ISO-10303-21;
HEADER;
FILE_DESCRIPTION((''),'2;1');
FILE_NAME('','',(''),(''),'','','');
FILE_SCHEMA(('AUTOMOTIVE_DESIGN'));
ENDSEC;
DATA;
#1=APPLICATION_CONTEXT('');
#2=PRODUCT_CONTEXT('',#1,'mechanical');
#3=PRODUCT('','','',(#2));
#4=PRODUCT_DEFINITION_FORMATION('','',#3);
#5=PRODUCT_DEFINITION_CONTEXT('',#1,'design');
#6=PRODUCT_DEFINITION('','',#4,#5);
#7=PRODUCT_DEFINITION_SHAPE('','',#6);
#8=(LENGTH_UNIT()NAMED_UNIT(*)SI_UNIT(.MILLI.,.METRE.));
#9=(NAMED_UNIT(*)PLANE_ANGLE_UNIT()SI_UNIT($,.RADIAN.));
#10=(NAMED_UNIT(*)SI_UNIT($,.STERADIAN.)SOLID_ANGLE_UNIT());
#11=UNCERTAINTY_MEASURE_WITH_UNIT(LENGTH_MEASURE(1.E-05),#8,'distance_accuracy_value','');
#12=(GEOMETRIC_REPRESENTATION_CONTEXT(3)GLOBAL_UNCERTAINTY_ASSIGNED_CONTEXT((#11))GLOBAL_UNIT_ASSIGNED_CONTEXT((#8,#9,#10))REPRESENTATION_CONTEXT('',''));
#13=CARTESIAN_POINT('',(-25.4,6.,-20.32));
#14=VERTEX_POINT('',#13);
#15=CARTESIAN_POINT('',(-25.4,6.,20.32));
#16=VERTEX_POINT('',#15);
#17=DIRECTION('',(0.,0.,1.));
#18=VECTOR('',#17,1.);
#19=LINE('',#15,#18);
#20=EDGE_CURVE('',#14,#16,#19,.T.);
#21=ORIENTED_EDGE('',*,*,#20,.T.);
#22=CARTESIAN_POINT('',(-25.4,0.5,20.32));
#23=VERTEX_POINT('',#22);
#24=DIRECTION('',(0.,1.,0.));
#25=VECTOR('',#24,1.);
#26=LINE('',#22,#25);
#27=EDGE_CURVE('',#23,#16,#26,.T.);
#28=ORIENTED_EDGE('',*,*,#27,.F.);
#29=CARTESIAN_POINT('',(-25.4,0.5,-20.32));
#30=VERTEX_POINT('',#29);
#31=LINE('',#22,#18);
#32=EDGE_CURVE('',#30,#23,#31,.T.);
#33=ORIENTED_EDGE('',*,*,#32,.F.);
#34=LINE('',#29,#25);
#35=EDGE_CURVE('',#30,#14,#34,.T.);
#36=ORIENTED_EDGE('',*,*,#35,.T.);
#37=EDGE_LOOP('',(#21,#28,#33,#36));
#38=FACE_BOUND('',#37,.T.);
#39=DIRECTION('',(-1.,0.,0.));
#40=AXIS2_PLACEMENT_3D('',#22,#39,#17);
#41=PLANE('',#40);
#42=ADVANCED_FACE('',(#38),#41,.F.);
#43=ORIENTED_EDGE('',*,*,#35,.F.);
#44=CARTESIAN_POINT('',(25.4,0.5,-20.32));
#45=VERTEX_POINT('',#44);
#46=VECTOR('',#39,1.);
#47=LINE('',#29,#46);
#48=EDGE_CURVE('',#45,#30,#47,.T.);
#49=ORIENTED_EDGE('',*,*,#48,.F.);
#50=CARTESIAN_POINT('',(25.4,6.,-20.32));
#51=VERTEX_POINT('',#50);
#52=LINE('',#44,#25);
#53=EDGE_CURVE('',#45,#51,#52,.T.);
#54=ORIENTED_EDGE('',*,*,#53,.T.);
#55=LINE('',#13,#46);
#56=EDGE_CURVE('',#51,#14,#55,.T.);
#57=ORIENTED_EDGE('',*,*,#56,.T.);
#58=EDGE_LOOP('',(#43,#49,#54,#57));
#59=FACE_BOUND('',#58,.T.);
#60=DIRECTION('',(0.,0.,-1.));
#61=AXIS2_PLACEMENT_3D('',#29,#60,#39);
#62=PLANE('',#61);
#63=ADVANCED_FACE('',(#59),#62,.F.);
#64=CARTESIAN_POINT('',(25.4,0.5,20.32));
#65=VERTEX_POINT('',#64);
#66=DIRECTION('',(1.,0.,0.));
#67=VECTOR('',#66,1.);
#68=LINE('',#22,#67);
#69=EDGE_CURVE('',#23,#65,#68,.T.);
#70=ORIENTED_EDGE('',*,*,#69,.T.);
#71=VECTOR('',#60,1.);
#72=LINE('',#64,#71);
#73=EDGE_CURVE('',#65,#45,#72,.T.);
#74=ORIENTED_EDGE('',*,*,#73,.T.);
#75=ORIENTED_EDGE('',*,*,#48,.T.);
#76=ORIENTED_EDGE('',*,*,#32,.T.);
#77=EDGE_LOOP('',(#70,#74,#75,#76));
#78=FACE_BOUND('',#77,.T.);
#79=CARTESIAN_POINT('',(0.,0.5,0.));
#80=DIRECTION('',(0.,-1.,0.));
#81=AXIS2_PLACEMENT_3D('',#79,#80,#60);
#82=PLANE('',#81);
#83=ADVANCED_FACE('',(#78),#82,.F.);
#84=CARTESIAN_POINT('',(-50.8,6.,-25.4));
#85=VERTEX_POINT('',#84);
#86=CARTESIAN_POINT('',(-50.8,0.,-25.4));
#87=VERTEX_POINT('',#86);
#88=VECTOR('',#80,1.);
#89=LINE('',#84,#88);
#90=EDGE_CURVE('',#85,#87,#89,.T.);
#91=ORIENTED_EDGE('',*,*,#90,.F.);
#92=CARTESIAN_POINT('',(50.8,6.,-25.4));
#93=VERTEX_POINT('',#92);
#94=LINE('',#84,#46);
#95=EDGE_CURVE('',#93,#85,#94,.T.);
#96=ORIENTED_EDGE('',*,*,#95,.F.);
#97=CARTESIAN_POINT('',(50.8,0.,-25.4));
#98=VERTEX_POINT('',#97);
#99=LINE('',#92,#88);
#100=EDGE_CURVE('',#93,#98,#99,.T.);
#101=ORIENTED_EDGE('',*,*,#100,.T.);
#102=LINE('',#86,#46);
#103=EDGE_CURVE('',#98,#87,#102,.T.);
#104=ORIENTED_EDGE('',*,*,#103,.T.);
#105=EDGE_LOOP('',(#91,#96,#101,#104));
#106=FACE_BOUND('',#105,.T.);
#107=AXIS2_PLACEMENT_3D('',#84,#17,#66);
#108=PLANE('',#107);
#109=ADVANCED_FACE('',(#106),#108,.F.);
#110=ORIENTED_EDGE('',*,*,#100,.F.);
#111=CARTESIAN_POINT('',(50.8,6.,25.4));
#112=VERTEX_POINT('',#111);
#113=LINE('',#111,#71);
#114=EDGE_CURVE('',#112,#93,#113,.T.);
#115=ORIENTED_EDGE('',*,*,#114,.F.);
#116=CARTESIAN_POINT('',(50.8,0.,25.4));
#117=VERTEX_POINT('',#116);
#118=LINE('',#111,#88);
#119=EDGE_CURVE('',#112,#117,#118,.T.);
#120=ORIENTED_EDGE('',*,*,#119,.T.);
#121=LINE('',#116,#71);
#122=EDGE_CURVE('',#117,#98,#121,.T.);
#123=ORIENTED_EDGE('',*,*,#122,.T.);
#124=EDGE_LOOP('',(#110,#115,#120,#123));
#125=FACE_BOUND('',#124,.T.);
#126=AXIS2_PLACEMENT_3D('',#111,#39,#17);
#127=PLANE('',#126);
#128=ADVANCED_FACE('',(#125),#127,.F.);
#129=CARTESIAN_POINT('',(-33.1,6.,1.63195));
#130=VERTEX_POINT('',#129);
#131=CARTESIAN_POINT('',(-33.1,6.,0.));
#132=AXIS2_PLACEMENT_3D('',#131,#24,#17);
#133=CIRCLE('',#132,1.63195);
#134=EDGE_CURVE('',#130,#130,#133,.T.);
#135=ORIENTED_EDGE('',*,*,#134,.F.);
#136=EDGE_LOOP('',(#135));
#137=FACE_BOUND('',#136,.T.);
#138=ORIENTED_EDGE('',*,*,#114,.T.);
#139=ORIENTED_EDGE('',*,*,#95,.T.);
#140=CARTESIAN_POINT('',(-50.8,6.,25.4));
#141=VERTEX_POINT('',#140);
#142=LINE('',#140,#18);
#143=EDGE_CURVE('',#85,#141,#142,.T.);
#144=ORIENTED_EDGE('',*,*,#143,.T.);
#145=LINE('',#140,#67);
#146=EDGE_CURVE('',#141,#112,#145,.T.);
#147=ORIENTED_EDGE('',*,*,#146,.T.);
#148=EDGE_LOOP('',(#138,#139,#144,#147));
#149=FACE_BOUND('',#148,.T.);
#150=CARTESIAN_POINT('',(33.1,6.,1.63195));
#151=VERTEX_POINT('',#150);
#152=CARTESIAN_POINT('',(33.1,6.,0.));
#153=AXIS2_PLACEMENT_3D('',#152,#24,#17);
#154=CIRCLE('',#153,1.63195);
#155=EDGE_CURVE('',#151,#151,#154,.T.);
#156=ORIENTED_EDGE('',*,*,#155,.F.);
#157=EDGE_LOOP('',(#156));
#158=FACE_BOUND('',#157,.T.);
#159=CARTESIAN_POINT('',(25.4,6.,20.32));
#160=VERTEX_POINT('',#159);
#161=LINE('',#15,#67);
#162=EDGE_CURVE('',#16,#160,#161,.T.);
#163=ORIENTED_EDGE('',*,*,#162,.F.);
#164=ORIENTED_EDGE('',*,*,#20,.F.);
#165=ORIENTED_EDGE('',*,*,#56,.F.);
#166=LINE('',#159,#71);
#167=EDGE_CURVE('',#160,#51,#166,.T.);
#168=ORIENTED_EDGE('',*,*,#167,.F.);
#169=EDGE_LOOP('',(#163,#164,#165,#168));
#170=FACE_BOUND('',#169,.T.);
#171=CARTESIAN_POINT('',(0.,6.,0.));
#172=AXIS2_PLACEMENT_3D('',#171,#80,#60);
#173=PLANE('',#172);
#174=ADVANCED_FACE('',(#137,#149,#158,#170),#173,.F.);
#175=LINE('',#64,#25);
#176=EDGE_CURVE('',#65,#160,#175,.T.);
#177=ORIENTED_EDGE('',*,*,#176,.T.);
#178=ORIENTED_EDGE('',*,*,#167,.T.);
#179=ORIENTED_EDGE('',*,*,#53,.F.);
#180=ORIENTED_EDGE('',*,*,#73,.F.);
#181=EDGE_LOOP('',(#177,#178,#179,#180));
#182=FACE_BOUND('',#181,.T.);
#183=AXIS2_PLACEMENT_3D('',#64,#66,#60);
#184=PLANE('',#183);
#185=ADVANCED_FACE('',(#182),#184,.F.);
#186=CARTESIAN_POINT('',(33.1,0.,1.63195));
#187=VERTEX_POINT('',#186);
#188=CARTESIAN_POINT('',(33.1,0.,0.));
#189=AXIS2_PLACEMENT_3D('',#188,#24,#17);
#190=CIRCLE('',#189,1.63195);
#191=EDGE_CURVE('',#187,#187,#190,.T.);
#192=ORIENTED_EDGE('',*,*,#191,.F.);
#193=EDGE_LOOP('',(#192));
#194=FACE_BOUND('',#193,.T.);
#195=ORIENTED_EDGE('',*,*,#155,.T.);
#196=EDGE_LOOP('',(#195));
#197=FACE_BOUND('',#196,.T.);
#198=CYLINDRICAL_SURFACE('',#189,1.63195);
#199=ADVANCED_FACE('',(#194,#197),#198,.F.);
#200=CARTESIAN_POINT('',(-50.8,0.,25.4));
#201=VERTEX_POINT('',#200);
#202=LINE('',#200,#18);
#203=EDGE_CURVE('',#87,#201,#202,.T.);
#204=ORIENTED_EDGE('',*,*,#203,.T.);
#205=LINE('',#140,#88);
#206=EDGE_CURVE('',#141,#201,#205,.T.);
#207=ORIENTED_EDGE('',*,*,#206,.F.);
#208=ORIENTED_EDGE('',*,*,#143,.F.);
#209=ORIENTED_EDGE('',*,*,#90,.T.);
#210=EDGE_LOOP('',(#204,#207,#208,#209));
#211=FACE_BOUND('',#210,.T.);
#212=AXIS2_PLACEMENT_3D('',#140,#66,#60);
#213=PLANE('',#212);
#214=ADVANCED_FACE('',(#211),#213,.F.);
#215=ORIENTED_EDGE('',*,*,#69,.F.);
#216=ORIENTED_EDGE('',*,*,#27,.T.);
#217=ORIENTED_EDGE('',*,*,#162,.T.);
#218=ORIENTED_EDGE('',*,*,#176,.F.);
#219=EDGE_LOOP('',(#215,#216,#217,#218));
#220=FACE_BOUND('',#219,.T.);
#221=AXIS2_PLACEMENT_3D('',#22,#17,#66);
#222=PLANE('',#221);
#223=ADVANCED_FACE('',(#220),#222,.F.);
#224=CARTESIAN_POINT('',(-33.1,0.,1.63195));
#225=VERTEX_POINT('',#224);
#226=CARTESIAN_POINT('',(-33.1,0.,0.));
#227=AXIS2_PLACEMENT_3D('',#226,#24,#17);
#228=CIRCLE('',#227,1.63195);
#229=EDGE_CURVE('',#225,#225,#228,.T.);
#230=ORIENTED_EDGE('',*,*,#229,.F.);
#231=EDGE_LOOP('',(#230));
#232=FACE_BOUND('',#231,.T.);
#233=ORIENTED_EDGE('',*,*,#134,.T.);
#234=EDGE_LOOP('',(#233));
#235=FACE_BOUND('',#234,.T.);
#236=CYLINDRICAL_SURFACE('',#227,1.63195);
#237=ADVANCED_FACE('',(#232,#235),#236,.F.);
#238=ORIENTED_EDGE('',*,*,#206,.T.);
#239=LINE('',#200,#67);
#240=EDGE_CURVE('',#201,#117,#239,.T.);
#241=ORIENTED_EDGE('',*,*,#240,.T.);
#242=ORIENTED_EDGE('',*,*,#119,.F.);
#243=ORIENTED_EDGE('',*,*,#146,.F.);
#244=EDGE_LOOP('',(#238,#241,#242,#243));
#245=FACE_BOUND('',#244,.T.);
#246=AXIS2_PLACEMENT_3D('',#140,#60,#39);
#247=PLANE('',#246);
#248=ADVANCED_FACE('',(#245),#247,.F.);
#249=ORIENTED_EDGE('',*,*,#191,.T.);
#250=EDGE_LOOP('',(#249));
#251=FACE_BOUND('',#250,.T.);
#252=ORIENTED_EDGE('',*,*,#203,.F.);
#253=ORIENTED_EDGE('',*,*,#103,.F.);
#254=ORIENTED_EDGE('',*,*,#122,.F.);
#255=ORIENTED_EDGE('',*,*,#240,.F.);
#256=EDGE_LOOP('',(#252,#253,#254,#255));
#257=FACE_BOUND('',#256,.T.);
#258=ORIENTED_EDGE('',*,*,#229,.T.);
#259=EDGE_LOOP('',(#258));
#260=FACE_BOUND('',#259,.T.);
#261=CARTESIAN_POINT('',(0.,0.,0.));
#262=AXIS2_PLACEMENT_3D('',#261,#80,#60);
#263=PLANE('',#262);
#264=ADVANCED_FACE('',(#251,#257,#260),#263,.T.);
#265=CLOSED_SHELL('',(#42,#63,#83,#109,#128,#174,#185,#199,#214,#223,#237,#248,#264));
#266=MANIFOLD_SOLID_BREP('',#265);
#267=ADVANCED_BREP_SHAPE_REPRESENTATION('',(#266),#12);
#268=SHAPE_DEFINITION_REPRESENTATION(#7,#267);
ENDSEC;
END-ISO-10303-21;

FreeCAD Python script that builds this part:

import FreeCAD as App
import Part
import Sketcher
Q = App.Units.Quantity

doc = App.newDocument("Part")
body = doc.addObject("PartDesign::Body", "Body")

# Sketch on XZ plane
sketch1 = body.newObject("Sketcher::SketchObject", "Sketch")
sketch1.AttachmentSupport = (doc.getObject("XZ_Plane"), [""])
sketch1.MapMode = "FlatFace"
sketch1.addGeometry([
    Part.LineSegment(App.Vector(-50.8, -25.4, 0), App.Vector(-50.8, 25.4, 0)),
    Part.LineSegment(App.Vector(-50.8, 25.4, 0), App.Vector(50.8, 25.4, 0)),
    Part.LineSegment(App.Vector(50.8, 25.4, 0), App.Vector(50.8, -25.4, 0)),
    Part.LineSegment(App.Vector(50.8, -25.4, 0), App.Vector(-50.8, -25.4, 0)),
], False)
sketch1.addConstraint([
    Sketcher.Constraint("Coincident", 0, 2, 1, 1),
    Sketcher.Constraint("Coincident", 1, 2, 2, 1),
    Sketcher.Constraint("Coincident", 2, 2, 3, 1),
    Sketcher.Constraint("Coincident", 3, 2, 0, 1),
    Sketcher.Constraint("Vertical", 0),
    Sketcher.Constraint("Horizontal", 1),
    Sketcher.Constraint("Vertical", 2),
    Sketcher.Constraint("Horizontal", 3),
    Sketcher.Constraint("Symmetric", 0, 2, 2, 2, -1, 1),
    Sketcher.Constraint("DistanceX", 1, 1, 1, 2, Q("4 in")),
    Sketcher.Constraint("DistanceY", 0, 1, 0, 2, Q("2 in")),
])
pad1 = body.newObject("PartDesign::Pad", "Pad")
pad1.Profile = sketch1
pad1.Length = 6
pad1.Reversed = True

# Sketch on XZ plane
sketch2 = body.newObject("Sketcher::SketchObject", "Sketch001")
sketch2.AttachmentSupport = (doc.getObject("XZ_Plane"), [""])
sketch2.MapMode = "FlatFace"
sketch2.AttachmentOffset = App.Placement(App.Vector(0, 0, -6), App.Rotation())
sketch2.addGeometry([
    Part.LineSegment(App.Vector(-25.4, -20.32, 0), App.Vector(-25.4, 20.32, 0)),
    Part.LineSegment(App.Vector(-25.4, 20.32, 0), App.Vector(25.4, 20.32, 0)),
    Part.LineSegment(App.Vector(25.4, 20.32, 0), App.Vector(25.4, -20.32, 0)),
    Part.LineSegment(App.Vector(25.4, -20.32, 0), App.Vector(-25.4, -20.32, 0)),
], False)
sketch2.addConstraint([
    Sketcher.Constraint("Coincident", 0, 2, 1, 1),
    Sketcher.Constraint("Coincident", 1, 2, 2, 1),
    Sketcher.Constraint("Coincident", 2, 2, 3, 1),
    Sketcher.Constraint("Coincident", 3, 2, 0, 1),
    Sketcher.Constraint("Vertical", 0),
    Sketcher.Constraint("Horizontal", 1),
    Sketcher.Constraint("Vertical", 2),
    Sketcher.Constraint("Horizontal", 3),
    Sketcher.Constraint("Symmetric", 0, 2, 2, 2, -1, 1),
    Sketcher.Constraint("DistanceX", 1, 1, 1, 2, Q("2 in")),
    Sketcher.Constraint("DistanceY", 0, 1, 0, 2, Q("1.6 in")),
])
pocket1 = body.newObject("PartDesign::Pocket", "Pocket")
pocket1.Profile = sketch2
pocket1.Length = 5.5
pocket1.Reversed = True

# Sketch on XZ plane
sketch3 = body.newObject("Sketcher::SketchObject", "Sketch002")
sketch3.AttachmentSupport = (doc.getObject("XZ_Plane"), [""])
sketch3.MapMode = "FlatFace"
sketch3.AttachmentOffset = App.Placement(App.Vector(0, 0, -6), App.Rotation())
sketch3.addGeometry(Part.Circle(App.Vector(-33.1, 0, 0), App.Vector(0, 0, 1), 1.63195), False)
sketch3.addConstraint([
    Sketcher.Constraint("PointOnObject", 0, 3, -1),
    Sketcher.Constraint("Diameter", 0, Q("0.1285 in")),
    Sketcher.Constraint("DistanceX", 0, 3, -1, 1, Q("33.1 mm")),
])
pocket2 = body.newObject("PartDesign::Pocket", "Pocket001")
pocket2.Profile = sketch3
pocket2.Type = "ThroughAll"
pocket2.Reversed = True

# Sketch on XZ plane
sketch4 = body.newObject("Sketcher::SketchObject", "Sketch003")
sketch4.AttachmentSupport = (doc.getObject("XZ_Plane"), [""])
sketch4.MapMode = "FlatFace"
sketch4.AttachmentOffset = App.Placement(App.Vector(0, 0, -6), App.Rotation())
sketch4.addGeometry(Part.Circle(App.Vector(33.1, 0, 0), App.Vector(0, 0, 1), 1.63195), False)
sketch4.addConstraint([
    Sketcher.Constraint("PointOnObject", 0, 3, -1),
    Sketcher.Constraint("Diameter", 0, Q("0.1285 in")),
    Sketcher.Constraint("DistanceX", -1, 1, 0, 3, Q("33.1 mm")),
])
pocket3 = body.newObject("PartDesign::Pocket", "Pocket002")
pocket3.Profile = sketch4
pocket3.Type = "ThroughAll"
pocket3.Reversed = True

doc.recompute()
